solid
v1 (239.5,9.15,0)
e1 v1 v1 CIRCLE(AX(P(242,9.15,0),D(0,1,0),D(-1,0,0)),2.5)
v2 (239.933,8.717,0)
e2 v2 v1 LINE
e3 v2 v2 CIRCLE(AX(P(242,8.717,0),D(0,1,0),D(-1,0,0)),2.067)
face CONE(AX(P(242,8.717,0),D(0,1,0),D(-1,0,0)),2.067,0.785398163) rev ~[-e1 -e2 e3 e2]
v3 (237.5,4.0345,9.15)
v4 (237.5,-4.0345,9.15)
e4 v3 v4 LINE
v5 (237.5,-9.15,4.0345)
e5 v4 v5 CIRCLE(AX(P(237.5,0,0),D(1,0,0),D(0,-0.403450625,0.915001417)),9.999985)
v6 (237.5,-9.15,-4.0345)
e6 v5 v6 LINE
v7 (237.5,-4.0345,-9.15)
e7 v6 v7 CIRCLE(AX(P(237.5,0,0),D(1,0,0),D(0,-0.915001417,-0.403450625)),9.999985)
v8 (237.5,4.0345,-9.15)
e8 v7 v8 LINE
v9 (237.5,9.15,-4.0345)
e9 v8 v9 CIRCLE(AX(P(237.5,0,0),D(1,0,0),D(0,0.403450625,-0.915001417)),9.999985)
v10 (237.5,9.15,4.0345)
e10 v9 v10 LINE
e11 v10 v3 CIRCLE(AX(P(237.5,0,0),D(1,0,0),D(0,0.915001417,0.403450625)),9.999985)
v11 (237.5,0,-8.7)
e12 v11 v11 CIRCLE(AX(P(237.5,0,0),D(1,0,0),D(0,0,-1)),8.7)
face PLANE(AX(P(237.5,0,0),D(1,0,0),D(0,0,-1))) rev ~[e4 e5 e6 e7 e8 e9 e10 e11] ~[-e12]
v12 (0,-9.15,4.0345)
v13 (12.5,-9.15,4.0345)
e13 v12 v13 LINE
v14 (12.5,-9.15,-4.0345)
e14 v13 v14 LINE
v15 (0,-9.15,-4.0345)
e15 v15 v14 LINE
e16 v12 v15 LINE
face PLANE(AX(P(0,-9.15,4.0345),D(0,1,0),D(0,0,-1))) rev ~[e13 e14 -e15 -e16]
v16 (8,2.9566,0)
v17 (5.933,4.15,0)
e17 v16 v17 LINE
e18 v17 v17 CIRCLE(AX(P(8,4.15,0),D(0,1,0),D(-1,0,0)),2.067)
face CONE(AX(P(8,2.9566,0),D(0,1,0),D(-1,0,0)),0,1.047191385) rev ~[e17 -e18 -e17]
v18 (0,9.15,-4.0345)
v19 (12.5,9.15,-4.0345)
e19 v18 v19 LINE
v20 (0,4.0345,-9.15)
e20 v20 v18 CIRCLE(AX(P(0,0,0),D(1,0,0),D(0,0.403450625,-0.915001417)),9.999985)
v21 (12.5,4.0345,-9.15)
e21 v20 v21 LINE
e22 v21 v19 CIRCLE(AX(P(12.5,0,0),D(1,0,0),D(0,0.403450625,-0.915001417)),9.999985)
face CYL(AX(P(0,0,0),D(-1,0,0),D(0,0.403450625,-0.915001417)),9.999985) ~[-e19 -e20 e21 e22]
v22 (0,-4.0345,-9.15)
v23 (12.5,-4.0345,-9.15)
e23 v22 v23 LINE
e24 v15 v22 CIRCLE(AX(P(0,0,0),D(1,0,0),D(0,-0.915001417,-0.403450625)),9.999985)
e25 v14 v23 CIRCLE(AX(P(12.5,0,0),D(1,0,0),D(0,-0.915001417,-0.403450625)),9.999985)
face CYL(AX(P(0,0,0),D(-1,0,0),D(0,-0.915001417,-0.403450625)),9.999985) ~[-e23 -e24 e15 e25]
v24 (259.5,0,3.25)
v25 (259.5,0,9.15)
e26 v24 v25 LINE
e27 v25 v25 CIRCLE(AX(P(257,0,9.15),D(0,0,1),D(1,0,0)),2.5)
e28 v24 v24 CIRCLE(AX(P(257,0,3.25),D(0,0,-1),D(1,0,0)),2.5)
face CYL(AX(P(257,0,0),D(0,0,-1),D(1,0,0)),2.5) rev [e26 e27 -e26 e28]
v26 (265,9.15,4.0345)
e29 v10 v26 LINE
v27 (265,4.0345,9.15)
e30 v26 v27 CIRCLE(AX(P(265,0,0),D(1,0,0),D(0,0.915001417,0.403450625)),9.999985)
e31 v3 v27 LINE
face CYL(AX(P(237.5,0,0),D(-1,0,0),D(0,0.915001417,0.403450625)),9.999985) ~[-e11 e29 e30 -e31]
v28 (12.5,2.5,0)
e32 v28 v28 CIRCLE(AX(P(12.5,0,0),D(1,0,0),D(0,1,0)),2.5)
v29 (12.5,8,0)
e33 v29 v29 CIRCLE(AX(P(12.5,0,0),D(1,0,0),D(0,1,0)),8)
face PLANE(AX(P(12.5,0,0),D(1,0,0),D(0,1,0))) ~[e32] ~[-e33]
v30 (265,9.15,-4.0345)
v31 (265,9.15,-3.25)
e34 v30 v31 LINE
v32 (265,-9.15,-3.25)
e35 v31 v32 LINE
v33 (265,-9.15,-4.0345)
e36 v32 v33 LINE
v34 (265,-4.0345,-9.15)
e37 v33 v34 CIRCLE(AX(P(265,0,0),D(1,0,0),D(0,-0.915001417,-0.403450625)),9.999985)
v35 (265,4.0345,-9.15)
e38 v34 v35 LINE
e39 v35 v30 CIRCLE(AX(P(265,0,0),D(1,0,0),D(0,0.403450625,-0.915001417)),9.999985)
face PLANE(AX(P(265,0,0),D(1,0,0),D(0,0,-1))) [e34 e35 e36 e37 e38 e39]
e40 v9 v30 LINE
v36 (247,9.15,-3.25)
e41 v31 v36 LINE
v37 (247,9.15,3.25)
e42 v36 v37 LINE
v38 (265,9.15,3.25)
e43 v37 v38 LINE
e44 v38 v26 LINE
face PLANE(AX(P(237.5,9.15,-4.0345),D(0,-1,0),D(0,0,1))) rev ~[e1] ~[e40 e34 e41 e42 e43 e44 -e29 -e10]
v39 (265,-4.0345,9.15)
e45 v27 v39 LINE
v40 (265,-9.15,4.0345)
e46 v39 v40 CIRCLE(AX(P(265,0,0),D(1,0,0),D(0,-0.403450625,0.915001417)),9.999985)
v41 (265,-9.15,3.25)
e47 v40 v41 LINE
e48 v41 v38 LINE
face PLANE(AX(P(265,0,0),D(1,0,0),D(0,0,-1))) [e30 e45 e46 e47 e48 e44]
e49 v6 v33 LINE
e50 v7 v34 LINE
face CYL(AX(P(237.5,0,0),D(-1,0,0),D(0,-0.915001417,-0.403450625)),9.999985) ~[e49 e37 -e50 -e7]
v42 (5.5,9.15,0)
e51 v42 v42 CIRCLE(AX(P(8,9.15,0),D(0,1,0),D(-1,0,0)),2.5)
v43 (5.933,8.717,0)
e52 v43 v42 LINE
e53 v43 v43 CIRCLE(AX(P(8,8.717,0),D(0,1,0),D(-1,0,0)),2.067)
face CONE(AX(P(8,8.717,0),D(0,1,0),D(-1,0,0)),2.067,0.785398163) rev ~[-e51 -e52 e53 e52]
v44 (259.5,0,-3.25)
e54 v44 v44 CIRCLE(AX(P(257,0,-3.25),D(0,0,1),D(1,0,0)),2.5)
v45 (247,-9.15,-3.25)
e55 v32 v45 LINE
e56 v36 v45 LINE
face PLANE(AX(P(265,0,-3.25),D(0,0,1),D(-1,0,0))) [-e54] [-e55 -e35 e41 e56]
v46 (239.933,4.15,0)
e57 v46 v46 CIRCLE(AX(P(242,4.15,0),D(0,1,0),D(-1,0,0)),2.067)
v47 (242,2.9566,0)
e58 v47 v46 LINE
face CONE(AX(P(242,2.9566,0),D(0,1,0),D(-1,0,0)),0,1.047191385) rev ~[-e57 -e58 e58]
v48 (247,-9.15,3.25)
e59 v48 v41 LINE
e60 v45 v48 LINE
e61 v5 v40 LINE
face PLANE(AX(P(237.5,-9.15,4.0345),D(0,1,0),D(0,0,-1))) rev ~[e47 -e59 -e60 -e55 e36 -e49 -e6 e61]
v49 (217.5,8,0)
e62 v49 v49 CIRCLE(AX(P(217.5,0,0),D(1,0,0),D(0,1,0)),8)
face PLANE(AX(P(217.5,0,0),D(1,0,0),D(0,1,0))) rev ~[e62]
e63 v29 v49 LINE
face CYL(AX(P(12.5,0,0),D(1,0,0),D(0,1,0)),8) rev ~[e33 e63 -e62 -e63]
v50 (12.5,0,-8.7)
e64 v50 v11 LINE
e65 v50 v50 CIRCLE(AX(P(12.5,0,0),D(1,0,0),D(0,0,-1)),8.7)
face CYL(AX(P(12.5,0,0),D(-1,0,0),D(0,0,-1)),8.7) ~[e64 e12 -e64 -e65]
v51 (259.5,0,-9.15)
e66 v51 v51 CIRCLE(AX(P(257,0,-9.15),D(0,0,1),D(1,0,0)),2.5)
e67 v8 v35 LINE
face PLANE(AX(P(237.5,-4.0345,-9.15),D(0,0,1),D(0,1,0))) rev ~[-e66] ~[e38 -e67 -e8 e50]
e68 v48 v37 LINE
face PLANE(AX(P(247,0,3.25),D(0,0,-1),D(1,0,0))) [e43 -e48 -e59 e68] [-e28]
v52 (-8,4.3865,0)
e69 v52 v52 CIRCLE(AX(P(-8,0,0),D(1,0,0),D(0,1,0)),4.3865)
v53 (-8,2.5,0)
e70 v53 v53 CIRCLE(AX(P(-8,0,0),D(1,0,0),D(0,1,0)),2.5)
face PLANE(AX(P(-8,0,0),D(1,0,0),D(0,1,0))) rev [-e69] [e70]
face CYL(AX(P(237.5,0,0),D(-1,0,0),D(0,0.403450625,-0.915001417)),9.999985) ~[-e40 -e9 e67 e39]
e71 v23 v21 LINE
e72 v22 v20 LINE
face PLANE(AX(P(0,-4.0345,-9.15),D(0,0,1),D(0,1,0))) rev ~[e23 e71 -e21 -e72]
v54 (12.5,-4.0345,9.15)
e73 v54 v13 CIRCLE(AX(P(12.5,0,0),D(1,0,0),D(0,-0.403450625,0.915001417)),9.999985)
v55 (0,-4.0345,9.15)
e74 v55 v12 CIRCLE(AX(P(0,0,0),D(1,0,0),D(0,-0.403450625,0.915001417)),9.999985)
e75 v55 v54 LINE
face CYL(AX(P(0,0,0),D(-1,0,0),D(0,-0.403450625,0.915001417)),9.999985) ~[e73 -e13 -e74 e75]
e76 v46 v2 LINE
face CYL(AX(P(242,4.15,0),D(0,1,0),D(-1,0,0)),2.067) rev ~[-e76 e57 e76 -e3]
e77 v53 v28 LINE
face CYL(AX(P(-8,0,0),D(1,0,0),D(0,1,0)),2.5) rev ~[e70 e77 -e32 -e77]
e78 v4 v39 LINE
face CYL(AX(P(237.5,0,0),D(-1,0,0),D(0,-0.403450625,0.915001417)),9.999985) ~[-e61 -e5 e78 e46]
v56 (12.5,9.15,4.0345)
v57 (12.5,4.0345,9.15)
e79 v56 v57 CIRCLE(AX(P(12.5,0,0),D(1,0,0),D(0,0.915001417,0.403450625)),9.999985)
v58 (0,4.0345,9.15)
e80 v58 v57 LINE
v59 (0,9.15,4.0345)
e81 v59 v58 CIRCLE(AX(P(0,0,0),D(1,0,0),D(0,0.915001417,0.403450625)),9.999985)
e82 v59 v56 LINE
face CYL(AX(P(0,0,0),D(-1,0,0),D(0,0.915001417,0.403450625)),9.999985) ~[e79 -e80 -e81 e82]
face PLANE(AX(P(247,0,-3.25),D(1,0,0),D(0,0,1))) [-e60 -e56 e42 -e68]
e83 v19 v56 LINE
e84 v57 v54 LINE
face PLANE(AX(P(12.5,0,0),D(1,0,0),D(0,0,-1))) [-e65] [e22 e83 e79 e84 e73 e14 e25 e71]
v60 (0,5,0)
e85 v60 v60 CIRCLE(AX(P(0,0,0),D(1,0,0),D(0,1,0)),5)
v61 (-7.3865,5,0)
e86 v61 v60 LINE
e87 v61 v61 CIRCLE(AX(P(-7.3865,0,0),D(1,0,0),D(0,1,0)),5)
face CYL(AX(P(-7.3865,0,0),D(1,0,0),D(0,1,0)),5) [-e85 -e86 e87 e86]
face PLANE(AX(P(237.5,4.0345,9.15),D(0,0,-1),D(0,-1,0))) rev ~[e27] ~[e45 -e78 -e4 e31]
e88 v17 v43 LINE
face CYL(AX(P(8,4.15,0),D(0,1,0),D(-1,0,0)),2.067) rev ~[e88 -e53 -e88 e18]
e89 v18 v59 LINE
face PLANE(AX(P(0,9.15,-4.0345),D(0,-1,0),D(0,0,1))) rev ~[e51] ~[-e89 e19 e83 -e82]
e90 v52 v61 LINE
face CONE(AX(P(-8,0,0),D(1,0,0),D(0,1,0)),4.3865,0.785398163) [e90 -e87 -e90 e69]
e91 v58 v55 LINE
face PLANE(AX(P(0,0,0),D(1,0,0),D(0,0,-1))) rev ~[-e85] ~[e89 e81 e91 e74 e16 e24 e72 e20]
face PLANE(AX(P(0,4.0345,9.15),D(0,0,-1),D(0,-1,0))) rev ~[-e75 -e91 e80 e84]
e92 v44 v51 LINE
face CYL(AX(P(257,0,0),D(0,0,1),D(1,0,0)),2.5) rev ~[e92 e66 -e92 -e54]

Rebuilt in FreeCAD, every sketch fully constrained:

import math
import FreeCAD as App
import Part
import Sketcher
from FreeCAD import Vector
Q = App.Units.Quantity


def add_polygon(sketch, points):
    """Adds a closed chain of lines whose ends are joined by coincident constraints."""
    first, n = sketch.GeometryCount, len(points)
    for a, b in zip(points, points[1:] + points[:1]):
        sketch.addGeometry(Part.LineSegment(App.Vector(*a, 0), App.Vector(*b, 0)), False)
    for i in range(n):
        sketch.addConstraint(Sketcher.Constraint("Coincident", first + i, 2, first + (i + 1) % n, 1))

doc = App.newDocument("Part")
body = doc.addObject("PartDesign::Body", "Body")

# Sketch on XY plane
sketch1 = body.newObject("Sketcher::SketchObject", "Sketch")
sketch1.AttachmentSupport = (doc.getObject("XY_Plane"), [""])
sketch1.MapMode = "FlatFace"
add_polygon(sketch1, [(-8, 0), (0, 0), (0, 5), (-7.4, 5), (-8, 4.4)])  # lines 0-4
sketch1.addConstraint(Sketcher.Constraint("Horizontal", 0))
sketch1.addConstraint(Sketcher.Constraint("Vertical", 1))
sketch1.addConstraint(Sketcher.Constraint("Horizontal", 2))
sketch1.addConstraint(Sketcher.Constraint("Vertical", 4))
sketch1.addConstraint(Sketcher.Constraint("Coincident", 0, 2, -1, 1))
sketch1.addConstraint(Sketcher.Constraint("DistanceX", 0, 1, 0, 2, Q("8 mm")))
sketch1.addConstraint(Sketcher.Constraint("DistanceY", 1, 1, 1, 2, Q("5 mm")))
sketch1.addConstraint(Sketcher.Constraint("Angle", 3, Q("-135 deg")))
sketch1.addConstraint(Sketcher.Constraint("DistanceX", 2, 2, 2, 1, Q("7.3865 mm")))
revolution = body.newObject("PartDesign::Revolution", "Revolution")
revolution.Profile = sketch1
revolution.ReferenceAxis = (sketch1, ["H_Axis"])
revolution.Angle = 360

# Sketch on YZ plane
sketch2 = body.newObject("Sketcher::SketchObject", "Sketch001")
sketch2.AttachmentSupport = (doc.getObject("YZ_Plane"), [""])
sketch2.MapMode = "FlatFace"
sketch2.addGeometry(Part.ArcOfCircle(Part.Circle(Vector(0, 0, 0), Vector(0, 0, 1), 10), math.radians(24), math.radians(66)), False)
sketch2.addGeometry(Part.LineSegment(Vector(4, 9, 0), Vector(-4, 9, 0)), False)
sketch2.addGeometry(Part.ArcOfCircle(Part.Circle(Vector(0, 0, 0), Vector(0, 0, 1), 10), math.radians(114), math.radians(156)), False)
sketch2.addGeometry(Part.LineSegment(Vector(-9, 4, 0), Vector(-9, -4, 0)), False)
sketch2.addGeometry(Part.ArcOfCircle(Part.Circle(Vector(0, 0, 0), Vector(0, 0, 1), 10), math.radians(-156), math.radians(-114)), False)
sketch2.addGeometry(Part.LineSegment(Vector(-4, -9, 0), Vector(4, -9, 0)), False)
sketch2.addGeometry(Part.ArcOfCircle(Part.Circle(Vector(0, 0, 0), Vector(0, 0, 1), 10), math.radians(-66), math.radians(-24)), False)
sketch2.addGeometry(Part.LineSegment(Vector(9, -4, 0), Vector(9, 4, 0)), False)
sketch2.addConstraint(Sketcher.Constraint("Coincident", 0, 2, 1, 1))
sketch2.addConstraint(Sketcher.Constraint("Coincident", 1, 2, 2, 1))
sketch2.addConstraint(Sketcher.Constraint("Coincident", 2, 2, 3, 1))
sketch2.addConstraint(Sketcher.Constraint("Coincident", 3, 2, 4, 1))
sketch2.addConstraint(Sketcher.Constraint("Coincident", 4, 2, 5, 1))
sketch2.addConstraint(Sketcher.Constraint("Coincident", 5, 2, 6, 1))
sketch2.addConstraint(Sketcher.Constraint("Coincident", 6, 2, 7, 1))
sketch2.addConstraint(Sketcher.Constraint("Coincident", 7, 2, 0, 1))
sketch2.addConstraint(Sketcher.Constraint("Horizontal", 1))
sketch2.addConstraint(Sketcher.Constraint("Vertical", 3))
sketch2.addConstraint(Sketcher.Constraint("Horizontal", 5))
sketch2.addConstraint(Sketcher.Constraint("Vertical", 7))
sketch2.addConstraint(Sketcher.Constraint("Coincident", 0, 3, -1, 1))
sketch2.addConstraint(Sketcher.Constraint("Coincident", 2, 3, -1, 1))
sketch2.addConstraint(Sketcher.Constraint("Coincident", 4, 3, -1, 1))
sketch2.addConstraint(Sketcher.Constraint("Coincident", 6, 3, -1, 1))
sketch2.addConstraint(Sketcher.Constraint("Equal", 0, 2))
sketch2.addConstraint(Sketcher.Constraint("Equal", 2, 4))
sketch2.addConstraint(Sketcher.Constraint("Equal", 4, 6))
sketch2.addConstraint(Sketcher.Constraint("Horizontal", 3, 2, 6, 2))
sketch2.addConstraint(Sketcher.Constraint("Vertical", 1, 2, 4, 2))
sketch2.addConstraint(Sketcher.Constraint("Equal", 5, 3))
sketch2.addConstraint(Sketcher.Constraint("Radius", 0, Q("10 mm")))
sketch2.addConstraint(Sketcher.Constraint("DistanceX", 1, 2, 1, 1, Q("8.069 mm")))
pad1 = body.newObject("PartDesign::Pad", "Pad")
pad1.Profile = sketch2
pad1.Length = 12.5

# Sketch on YZ plane
sketch3 = body.newObject("Sketcher::SketchObject", "Sketch002")
sketch3.AttachmentSupport = (doc.getObject("YZ_Plane"), [""])
sketch3.MapMode = "FlatFace"
sketch3.AttachmentOffset = App.Placement(Vector(0, 0, 12.5), App.Rotation())
sketch3.addGeometry(Part.Circle(Vector(0, 0, 0), Vector(0, 0, 1), 9), False)
sketch3.addConstraint(Sketcher.Constraint("Coincident", 0, 3, -1, 1))
sketch3.addConstraint(Sketcher.Constraint("Diameter", 0, Q("17.4 mm")))
pad2 = body.newObject("PartDesign::Pad", "Pad001")
pad2.Profile = sketch3
pad2.Length = 225

# Sketch on YZ plane
sketch4 = body.newObject("Sketcher::SketchObject", "Sketch003")
sketch4.AttachmentSupport = (doc.getObject("YZ_Plane"), [""])
sketch4.MapMode = "FlatFace"
sketch4.AttachmentOffset = App.Placement(Vector(0, 0, 237.5), App.Rotation())
sketch4.addGeometry(Part.ArcOfCircle(Part.Circle(Vector(0, 0, 0), Vector(0, 0, 1), 10), math.radians(24), math.radians(66)), False)
sketch4.addGeometry(Part.LineSegment(Vector(4, 9, 0), Vector(-4, 9, 0)), False)
sketch4.addGeometry(Part.ArcOfCircle(Part.Circle(Vector(0, 0, 0), Vector(0, 0, 1), 10), math.radians(114), math.radians(156)), False)
sketch4.addGeometry(Part.LineSegment(Vector(-9, 4, 0), Vector(-9, -4, 0)), False)
sketch4.addGeometry(Part.ArcOfCircle(Part.Circle(Vector(0, 0, 0), Vector(0, 0, 1), 10), math.radians(-156), math.radians(-114)), False)
sketch4.addGeometry(Part.LineSegment(Vector(-4, -9, 0), Vector(4, -9, 0)), False)
sketch4.addGeometry(Part.ArcOfCircle(Part.Circle(Vector(0, 0, 0), Vector(0, 0, 1), 10), math.radians(-66), math.radians(-24)), False)
sketch4.addGeometry(Part.LineSegment(Vector(9, -4, 0), Vector(9, 4, 0)), False)
sketch4.addConstraint(Sketcher.Constraint("Coincident", 0, 2, 1, 1))
sketch4.addConstraint(Sketcher.Constraint("Coincident", 1, 2, 2, 1))
sketch4.addConstraint(Sketcher.Constraint("Coincident", 2, 2, 3, 1))
sketch4.addConstraint(Sketcher.Constraint("Coincident", 3, 2, 4, 1))
sketch4.addConstraint(Sketcher.Constraint("Coincident", 4, 2, 5, 1))
sketch4.addConstraint(Sketcher.Constraint("Coincident", 5, 2, 6, 1))
sketch4.addConstraint(Sketcher.Constraint("Coincident", 6, 2, 7, 1))
sketch4.addConstraint(Sketcher.Constraint("Coincident", 7, 2, 0, 1))
sketch4.addConstraint(Sketcher.Constraint("Horizontal", 1))
sketch4.addConstraint(Sketcher.Constraint("Vertical", 3))
sketch4.addConstraint(Sketcher.Constraint("Horizontal", 5))
sketch4.addConstraint(Sketcher.Constraint("Vertical", 7))
sketch4.addConstraint(Sketcher.Constraint("Coincident", 0, 3, -1, 1))
sketch4.addConstraint(Sketcher.Constraint("Coincident", 2, 3, -1, 1))
sketch4.addConstraint(Sketcher.Constraint("Coincident", 4, 3, -1, 1))
sketch4.addConstraint(Sketcher.Constraint("Coincident", 6, 3, -1, 1))
sketch4.addConstraint(Sketcher.Constraint("Equal", 0, 2))
sketch4.addConstraint(Sketcher.Constraint("Equal", 2, 4))
sketch4.addConstraint(Sketcher.Constraint("Equal", 4, 6))
sketch4.addConstraint(Sketcher.Constraint("Horizontal", 3, 2, 6, 2))
sketch4.addConstraint(Sketcher.Constraint("Vertical", 1, 2, 4, 2))
sketch4.addConstraint(Sketcher.Constraint("Equal", 5, 3))
sketch4.addConstraint(Sketcher.Constraint("Radius", 0, Q("10 mm")))
sketch4.addConstraint(Sketcher.Constraint("DistanceX", 1, 2, 1, 1, Q("8.069 mm")))
pad3 = body.newObject("PartDesign::Pad", "Pad002")
pad3.Profile = sketch4
pad3.Length = 27.5

# Sketch on XY plane
sketch5 = body.newObject("Sketcher::SketchObject", "Sketch004")
sketch5.AttachmentSupport = (doc.getObject("XY_Plane"), [""])
sketch5.MapMode = "FlatFace"
add_polygon(sketch5, [(8, 3), (8, 9.2), (5.5, 9.2), (5.9, 8.7), (5.9, 4.2)])  # lines 0-4
sketch5.addGeometry(Part.LineSegment(Vector(8, 3, 0), Vector(8, 9.2, 0)), True)  # axis
sketch5.addConstraint(Sketcher.Constraint("Vertical", 0))
sketch5.addConstraint(Sketcher.Constraint("Horizontal", 1))
sketch5.addConstraint(Sketcher.Constraint("Vertical", 3))
sketch5.addConstraint(Sketcher.Constraint("Vertical", 5))
sketch5.addConstraint(Sketcher.Constraint("Coincident", 5, 1, 4, 2))
sketch5.addConstraint(Sketcher.Constraint("Horizontal", 1, 2, 5, 2))
sketch5.addConstraint(Sketcher.Constraint("Angle", 2, Q("-45 deg")))
sketch5.addConstraint(Sketcher.Constraint("Angle", 4, Q("-30.0004 deg")))
sketch5.addConstraint(Sketcher.Constraint("DistanceX", 1, 2, 1, 1, Q("2.5 mm")))
sketch5.addConstraint(Sketcher.Constraint("DistanceX", -1, 1, 0, 2, Q("8 mm")))
sketch5.addConstraint(Sketcher.Constraint("DistanceY", 3, 2, 1, 2, Q("5 mm")))
sketch5.addConstraint(Sketcher.Constraint("DistanceY", 3, 2, 3, 1, Q("4.567 mm")))
sketch5.addConstraint(Sketcher.Constraint("DistanceY", -1, 1, 0, 2, Q("9.15 mm")))
groove = body.newObject("PartDesign::Groove", "Groove")
groove.Profile = sketch5
groove.ReferenceAxis = (sketch5, ["Axis0"])
groove.Angle = 360

# Sketch on XY plane
sketch6 = body.newObject("Sketcher::SketchObject", "Sketch005")
sketch6.AttachmentSupport = (doc.getObject("XY_Plane"), [""])
sketch6.MapMode = "FlatFace"
add_polygon(sketch6, [(242, 3), (242, 9.2), (239.5, 9.2), (239.9, 8.7), (239.9, 4.2)])  # lines 0-4
sketch6.addGeometry(Part.LineSegment(Vector(242, 3, 0), Vector(242, 9.2, 0)), True)  # axis
sketch6.addConstraint(Sketcher.Constraint("Vertical", 0))
sketch6.addConstraint(Sketcher.Constraint("Horizontal", 1))
sketch6.addConstraint(Sketcher.Constraint("Vertical", 3))
sketch6.addConstraint(Sketcher.Constraint("Vertical", 5))
sketch6.addConstraint(Sketcher.Constraint("Coincident", 5, 1, 4, 2))
sketch6.addConstraint(Sketcher.Constraint("Horizontal", 1, 2, 5, 2))
sketch6.addConstraint(Sketcher.Constraint("Angle", 2, Q("-45 deg")))
sketch6.addConstraint(Sketcher.Constraint("Angle", 4, Q("-30.0004 deg")))
sketch6.addConstraint(Sketcher.Constraint("DistanceX", 1, 2, 1, 1, Q("2.5 mm")))
sketch6.addConstraint(Sketcher.Constraint("DistanceX", -1, 1, 0, 2, Q("242 mm")))
sketch6.addConstraint(Sketcher.Constraint("DistanceY", 3, 2, 1, 2, Q("5 mm")))
sketch6.addConstraint(Sketcher.Constraint("DistanceY", 3, 2, 3, 1, Q("4.567 mm")))
sketch6.addConstraint(Sketcher.Constraint("DistanceY", -1, 1, 0, 2, Q("9.15 mm")))
groove2 = body.newObject("PartDesign::Groove", "Groove001")
groove2.Profile = sketch6
groove2.ReferenceAxis = (sketch6, ["Axis0"])
groove2.Angle = 360

# Sketch on XY plane
sketch7 = body.newObject("Sketcher::SketchObject", "Sketch006")
sketch7.AttachmentSupport = (doc.getObject("XY_Plane"), [""])
sketch7.MapMode = "FlatFace"
add_polygon(sketch7, [(-8, 0), (217.5, 0), (217.5, 8), (12.5, 8), (12.5, 2.5), (-8, 2.5)])  # lines 0-5
sketch7.addConstraint(Sketcher.Constraint("Horizontal", 0))
sketch7.addConstraint(Sketcher.Constraint("Vertical", 1))
sketch7.addConstraint(Sketcher.Constraint("Horizontal", 2))
sketch7.addConstraint(Sketcher.Constraint("Vertical", 3))
sketch7.addConstraint(Sketcher.Constraint("Horizontal", 4))
sketch7.addConstraint(Sketcher.Constraint("Vertical", 5))
sketch7.addConstraint(Sketcher.Constraint("PointOnObject", 0, 2, -1))
sketch7.addConstraint(Sketcher.Constraint("DistanceX", 2, 2, 2, 1, Q("205 mm")))
sketch7.addConstraint(Sketcher.Constraint("DistanceY", 1, 1, 1, 2, Q("8 mm")))
sketch7.addConstraint(Sketcher.Constraint("DistanceX", 0, 1, 0, 2, Q("225.5 mm")))
sketch7.addConstraint(Sketcher.Constraint("DistanceY", 3, 2, 3, 1, Q("5.5 mm")))
sketch7.addConstraint(Sketcher.Constraint("DistanceX", 4, 2, -1, 1, Q("8 mm")))
groove3 = body.newObject("PartDesign::Groove", "Groove002")
groove3.Profile = sketch7
groove3.ReferenceAxis = (sketch7, ["H_Axis"])
groove3.Angle = 360

# Sketch on XZ plane
sketch8 = body.newObject("Sketcher::SketchObject", "Sketch007")
sketch8.AttachmentSupport = (doc.getObject("XZ_Plane"), [""])
sketch8.MapMode = "FlatFace"
add_polygon(sketch8, [(247, -3), (247, 3), (265, 3), (265, -3)])  # lines 0-3
sketch8.addConstraint(Sketcher.Constraint("Vertical", 0))
sketch8.addConstraint(Sketcher.Constraint("Horizontal", 1))
sketch8.addConstraint(Sketcher.Constraint("Vertical", 2))
sketch8.addConstraint(Sketcher.Constraint("Horizontal", 3))
sketch8.addConstraint(Sketcher.Constraint("DistanceX", 1, 1, 1, 2, Q("18 mm")))
sketch8.addConstraint(Sketcher.Constraint("DistanceY", 0, 1, 0, 2, Q("6.5 mm")))
sketch8.addConstraint(Sketcher.Constraint("DistanceX", -1, 1, 0, 2, Q("247 mm")))
sketch8.addConstraint(Sketcher.Constraint("DistanceY", -1, 1, 0, 2, Q("3.25 mm")))
pocket1 = body.newObject("PartDesign::Pocket", "Pocket")
pocket1.Profile = sketch8
pocket1.Length = 18.3
pocket1.Midplane = True

# Sketch on XY plane
sketch9 = body.newObject("Sketcher::SketchObject", "Sketch008")
sketch9.AttachmentSupport = (doc.getObject("XY_Plane"), [""])
sketch9.MapMode = "FlatFace"
sketch9.addGeometry(Part.Circle(Vector(257, 0, 0), Vector(0, 0, 1), 2.5), False)
sketch9.addConstraint(Sketcher.Constraint("PointOnObject", 0, 3, -1))
sketch9.addConstraint(Sketcher.Constraint("Diameter", 0, Q("5 mm")))
sketch9.addConstraint(Sketcher.Constraint("DistanceX", -1, 1, 0, 3, Q("257 mm")))
pocket2 = body.newObject("PartDesign::Pocket", "Pocket001")
pocket2.Profile = sketch9
pocket2.Length = 18.3
pocket2.Midplane = True

doc.recompute()
